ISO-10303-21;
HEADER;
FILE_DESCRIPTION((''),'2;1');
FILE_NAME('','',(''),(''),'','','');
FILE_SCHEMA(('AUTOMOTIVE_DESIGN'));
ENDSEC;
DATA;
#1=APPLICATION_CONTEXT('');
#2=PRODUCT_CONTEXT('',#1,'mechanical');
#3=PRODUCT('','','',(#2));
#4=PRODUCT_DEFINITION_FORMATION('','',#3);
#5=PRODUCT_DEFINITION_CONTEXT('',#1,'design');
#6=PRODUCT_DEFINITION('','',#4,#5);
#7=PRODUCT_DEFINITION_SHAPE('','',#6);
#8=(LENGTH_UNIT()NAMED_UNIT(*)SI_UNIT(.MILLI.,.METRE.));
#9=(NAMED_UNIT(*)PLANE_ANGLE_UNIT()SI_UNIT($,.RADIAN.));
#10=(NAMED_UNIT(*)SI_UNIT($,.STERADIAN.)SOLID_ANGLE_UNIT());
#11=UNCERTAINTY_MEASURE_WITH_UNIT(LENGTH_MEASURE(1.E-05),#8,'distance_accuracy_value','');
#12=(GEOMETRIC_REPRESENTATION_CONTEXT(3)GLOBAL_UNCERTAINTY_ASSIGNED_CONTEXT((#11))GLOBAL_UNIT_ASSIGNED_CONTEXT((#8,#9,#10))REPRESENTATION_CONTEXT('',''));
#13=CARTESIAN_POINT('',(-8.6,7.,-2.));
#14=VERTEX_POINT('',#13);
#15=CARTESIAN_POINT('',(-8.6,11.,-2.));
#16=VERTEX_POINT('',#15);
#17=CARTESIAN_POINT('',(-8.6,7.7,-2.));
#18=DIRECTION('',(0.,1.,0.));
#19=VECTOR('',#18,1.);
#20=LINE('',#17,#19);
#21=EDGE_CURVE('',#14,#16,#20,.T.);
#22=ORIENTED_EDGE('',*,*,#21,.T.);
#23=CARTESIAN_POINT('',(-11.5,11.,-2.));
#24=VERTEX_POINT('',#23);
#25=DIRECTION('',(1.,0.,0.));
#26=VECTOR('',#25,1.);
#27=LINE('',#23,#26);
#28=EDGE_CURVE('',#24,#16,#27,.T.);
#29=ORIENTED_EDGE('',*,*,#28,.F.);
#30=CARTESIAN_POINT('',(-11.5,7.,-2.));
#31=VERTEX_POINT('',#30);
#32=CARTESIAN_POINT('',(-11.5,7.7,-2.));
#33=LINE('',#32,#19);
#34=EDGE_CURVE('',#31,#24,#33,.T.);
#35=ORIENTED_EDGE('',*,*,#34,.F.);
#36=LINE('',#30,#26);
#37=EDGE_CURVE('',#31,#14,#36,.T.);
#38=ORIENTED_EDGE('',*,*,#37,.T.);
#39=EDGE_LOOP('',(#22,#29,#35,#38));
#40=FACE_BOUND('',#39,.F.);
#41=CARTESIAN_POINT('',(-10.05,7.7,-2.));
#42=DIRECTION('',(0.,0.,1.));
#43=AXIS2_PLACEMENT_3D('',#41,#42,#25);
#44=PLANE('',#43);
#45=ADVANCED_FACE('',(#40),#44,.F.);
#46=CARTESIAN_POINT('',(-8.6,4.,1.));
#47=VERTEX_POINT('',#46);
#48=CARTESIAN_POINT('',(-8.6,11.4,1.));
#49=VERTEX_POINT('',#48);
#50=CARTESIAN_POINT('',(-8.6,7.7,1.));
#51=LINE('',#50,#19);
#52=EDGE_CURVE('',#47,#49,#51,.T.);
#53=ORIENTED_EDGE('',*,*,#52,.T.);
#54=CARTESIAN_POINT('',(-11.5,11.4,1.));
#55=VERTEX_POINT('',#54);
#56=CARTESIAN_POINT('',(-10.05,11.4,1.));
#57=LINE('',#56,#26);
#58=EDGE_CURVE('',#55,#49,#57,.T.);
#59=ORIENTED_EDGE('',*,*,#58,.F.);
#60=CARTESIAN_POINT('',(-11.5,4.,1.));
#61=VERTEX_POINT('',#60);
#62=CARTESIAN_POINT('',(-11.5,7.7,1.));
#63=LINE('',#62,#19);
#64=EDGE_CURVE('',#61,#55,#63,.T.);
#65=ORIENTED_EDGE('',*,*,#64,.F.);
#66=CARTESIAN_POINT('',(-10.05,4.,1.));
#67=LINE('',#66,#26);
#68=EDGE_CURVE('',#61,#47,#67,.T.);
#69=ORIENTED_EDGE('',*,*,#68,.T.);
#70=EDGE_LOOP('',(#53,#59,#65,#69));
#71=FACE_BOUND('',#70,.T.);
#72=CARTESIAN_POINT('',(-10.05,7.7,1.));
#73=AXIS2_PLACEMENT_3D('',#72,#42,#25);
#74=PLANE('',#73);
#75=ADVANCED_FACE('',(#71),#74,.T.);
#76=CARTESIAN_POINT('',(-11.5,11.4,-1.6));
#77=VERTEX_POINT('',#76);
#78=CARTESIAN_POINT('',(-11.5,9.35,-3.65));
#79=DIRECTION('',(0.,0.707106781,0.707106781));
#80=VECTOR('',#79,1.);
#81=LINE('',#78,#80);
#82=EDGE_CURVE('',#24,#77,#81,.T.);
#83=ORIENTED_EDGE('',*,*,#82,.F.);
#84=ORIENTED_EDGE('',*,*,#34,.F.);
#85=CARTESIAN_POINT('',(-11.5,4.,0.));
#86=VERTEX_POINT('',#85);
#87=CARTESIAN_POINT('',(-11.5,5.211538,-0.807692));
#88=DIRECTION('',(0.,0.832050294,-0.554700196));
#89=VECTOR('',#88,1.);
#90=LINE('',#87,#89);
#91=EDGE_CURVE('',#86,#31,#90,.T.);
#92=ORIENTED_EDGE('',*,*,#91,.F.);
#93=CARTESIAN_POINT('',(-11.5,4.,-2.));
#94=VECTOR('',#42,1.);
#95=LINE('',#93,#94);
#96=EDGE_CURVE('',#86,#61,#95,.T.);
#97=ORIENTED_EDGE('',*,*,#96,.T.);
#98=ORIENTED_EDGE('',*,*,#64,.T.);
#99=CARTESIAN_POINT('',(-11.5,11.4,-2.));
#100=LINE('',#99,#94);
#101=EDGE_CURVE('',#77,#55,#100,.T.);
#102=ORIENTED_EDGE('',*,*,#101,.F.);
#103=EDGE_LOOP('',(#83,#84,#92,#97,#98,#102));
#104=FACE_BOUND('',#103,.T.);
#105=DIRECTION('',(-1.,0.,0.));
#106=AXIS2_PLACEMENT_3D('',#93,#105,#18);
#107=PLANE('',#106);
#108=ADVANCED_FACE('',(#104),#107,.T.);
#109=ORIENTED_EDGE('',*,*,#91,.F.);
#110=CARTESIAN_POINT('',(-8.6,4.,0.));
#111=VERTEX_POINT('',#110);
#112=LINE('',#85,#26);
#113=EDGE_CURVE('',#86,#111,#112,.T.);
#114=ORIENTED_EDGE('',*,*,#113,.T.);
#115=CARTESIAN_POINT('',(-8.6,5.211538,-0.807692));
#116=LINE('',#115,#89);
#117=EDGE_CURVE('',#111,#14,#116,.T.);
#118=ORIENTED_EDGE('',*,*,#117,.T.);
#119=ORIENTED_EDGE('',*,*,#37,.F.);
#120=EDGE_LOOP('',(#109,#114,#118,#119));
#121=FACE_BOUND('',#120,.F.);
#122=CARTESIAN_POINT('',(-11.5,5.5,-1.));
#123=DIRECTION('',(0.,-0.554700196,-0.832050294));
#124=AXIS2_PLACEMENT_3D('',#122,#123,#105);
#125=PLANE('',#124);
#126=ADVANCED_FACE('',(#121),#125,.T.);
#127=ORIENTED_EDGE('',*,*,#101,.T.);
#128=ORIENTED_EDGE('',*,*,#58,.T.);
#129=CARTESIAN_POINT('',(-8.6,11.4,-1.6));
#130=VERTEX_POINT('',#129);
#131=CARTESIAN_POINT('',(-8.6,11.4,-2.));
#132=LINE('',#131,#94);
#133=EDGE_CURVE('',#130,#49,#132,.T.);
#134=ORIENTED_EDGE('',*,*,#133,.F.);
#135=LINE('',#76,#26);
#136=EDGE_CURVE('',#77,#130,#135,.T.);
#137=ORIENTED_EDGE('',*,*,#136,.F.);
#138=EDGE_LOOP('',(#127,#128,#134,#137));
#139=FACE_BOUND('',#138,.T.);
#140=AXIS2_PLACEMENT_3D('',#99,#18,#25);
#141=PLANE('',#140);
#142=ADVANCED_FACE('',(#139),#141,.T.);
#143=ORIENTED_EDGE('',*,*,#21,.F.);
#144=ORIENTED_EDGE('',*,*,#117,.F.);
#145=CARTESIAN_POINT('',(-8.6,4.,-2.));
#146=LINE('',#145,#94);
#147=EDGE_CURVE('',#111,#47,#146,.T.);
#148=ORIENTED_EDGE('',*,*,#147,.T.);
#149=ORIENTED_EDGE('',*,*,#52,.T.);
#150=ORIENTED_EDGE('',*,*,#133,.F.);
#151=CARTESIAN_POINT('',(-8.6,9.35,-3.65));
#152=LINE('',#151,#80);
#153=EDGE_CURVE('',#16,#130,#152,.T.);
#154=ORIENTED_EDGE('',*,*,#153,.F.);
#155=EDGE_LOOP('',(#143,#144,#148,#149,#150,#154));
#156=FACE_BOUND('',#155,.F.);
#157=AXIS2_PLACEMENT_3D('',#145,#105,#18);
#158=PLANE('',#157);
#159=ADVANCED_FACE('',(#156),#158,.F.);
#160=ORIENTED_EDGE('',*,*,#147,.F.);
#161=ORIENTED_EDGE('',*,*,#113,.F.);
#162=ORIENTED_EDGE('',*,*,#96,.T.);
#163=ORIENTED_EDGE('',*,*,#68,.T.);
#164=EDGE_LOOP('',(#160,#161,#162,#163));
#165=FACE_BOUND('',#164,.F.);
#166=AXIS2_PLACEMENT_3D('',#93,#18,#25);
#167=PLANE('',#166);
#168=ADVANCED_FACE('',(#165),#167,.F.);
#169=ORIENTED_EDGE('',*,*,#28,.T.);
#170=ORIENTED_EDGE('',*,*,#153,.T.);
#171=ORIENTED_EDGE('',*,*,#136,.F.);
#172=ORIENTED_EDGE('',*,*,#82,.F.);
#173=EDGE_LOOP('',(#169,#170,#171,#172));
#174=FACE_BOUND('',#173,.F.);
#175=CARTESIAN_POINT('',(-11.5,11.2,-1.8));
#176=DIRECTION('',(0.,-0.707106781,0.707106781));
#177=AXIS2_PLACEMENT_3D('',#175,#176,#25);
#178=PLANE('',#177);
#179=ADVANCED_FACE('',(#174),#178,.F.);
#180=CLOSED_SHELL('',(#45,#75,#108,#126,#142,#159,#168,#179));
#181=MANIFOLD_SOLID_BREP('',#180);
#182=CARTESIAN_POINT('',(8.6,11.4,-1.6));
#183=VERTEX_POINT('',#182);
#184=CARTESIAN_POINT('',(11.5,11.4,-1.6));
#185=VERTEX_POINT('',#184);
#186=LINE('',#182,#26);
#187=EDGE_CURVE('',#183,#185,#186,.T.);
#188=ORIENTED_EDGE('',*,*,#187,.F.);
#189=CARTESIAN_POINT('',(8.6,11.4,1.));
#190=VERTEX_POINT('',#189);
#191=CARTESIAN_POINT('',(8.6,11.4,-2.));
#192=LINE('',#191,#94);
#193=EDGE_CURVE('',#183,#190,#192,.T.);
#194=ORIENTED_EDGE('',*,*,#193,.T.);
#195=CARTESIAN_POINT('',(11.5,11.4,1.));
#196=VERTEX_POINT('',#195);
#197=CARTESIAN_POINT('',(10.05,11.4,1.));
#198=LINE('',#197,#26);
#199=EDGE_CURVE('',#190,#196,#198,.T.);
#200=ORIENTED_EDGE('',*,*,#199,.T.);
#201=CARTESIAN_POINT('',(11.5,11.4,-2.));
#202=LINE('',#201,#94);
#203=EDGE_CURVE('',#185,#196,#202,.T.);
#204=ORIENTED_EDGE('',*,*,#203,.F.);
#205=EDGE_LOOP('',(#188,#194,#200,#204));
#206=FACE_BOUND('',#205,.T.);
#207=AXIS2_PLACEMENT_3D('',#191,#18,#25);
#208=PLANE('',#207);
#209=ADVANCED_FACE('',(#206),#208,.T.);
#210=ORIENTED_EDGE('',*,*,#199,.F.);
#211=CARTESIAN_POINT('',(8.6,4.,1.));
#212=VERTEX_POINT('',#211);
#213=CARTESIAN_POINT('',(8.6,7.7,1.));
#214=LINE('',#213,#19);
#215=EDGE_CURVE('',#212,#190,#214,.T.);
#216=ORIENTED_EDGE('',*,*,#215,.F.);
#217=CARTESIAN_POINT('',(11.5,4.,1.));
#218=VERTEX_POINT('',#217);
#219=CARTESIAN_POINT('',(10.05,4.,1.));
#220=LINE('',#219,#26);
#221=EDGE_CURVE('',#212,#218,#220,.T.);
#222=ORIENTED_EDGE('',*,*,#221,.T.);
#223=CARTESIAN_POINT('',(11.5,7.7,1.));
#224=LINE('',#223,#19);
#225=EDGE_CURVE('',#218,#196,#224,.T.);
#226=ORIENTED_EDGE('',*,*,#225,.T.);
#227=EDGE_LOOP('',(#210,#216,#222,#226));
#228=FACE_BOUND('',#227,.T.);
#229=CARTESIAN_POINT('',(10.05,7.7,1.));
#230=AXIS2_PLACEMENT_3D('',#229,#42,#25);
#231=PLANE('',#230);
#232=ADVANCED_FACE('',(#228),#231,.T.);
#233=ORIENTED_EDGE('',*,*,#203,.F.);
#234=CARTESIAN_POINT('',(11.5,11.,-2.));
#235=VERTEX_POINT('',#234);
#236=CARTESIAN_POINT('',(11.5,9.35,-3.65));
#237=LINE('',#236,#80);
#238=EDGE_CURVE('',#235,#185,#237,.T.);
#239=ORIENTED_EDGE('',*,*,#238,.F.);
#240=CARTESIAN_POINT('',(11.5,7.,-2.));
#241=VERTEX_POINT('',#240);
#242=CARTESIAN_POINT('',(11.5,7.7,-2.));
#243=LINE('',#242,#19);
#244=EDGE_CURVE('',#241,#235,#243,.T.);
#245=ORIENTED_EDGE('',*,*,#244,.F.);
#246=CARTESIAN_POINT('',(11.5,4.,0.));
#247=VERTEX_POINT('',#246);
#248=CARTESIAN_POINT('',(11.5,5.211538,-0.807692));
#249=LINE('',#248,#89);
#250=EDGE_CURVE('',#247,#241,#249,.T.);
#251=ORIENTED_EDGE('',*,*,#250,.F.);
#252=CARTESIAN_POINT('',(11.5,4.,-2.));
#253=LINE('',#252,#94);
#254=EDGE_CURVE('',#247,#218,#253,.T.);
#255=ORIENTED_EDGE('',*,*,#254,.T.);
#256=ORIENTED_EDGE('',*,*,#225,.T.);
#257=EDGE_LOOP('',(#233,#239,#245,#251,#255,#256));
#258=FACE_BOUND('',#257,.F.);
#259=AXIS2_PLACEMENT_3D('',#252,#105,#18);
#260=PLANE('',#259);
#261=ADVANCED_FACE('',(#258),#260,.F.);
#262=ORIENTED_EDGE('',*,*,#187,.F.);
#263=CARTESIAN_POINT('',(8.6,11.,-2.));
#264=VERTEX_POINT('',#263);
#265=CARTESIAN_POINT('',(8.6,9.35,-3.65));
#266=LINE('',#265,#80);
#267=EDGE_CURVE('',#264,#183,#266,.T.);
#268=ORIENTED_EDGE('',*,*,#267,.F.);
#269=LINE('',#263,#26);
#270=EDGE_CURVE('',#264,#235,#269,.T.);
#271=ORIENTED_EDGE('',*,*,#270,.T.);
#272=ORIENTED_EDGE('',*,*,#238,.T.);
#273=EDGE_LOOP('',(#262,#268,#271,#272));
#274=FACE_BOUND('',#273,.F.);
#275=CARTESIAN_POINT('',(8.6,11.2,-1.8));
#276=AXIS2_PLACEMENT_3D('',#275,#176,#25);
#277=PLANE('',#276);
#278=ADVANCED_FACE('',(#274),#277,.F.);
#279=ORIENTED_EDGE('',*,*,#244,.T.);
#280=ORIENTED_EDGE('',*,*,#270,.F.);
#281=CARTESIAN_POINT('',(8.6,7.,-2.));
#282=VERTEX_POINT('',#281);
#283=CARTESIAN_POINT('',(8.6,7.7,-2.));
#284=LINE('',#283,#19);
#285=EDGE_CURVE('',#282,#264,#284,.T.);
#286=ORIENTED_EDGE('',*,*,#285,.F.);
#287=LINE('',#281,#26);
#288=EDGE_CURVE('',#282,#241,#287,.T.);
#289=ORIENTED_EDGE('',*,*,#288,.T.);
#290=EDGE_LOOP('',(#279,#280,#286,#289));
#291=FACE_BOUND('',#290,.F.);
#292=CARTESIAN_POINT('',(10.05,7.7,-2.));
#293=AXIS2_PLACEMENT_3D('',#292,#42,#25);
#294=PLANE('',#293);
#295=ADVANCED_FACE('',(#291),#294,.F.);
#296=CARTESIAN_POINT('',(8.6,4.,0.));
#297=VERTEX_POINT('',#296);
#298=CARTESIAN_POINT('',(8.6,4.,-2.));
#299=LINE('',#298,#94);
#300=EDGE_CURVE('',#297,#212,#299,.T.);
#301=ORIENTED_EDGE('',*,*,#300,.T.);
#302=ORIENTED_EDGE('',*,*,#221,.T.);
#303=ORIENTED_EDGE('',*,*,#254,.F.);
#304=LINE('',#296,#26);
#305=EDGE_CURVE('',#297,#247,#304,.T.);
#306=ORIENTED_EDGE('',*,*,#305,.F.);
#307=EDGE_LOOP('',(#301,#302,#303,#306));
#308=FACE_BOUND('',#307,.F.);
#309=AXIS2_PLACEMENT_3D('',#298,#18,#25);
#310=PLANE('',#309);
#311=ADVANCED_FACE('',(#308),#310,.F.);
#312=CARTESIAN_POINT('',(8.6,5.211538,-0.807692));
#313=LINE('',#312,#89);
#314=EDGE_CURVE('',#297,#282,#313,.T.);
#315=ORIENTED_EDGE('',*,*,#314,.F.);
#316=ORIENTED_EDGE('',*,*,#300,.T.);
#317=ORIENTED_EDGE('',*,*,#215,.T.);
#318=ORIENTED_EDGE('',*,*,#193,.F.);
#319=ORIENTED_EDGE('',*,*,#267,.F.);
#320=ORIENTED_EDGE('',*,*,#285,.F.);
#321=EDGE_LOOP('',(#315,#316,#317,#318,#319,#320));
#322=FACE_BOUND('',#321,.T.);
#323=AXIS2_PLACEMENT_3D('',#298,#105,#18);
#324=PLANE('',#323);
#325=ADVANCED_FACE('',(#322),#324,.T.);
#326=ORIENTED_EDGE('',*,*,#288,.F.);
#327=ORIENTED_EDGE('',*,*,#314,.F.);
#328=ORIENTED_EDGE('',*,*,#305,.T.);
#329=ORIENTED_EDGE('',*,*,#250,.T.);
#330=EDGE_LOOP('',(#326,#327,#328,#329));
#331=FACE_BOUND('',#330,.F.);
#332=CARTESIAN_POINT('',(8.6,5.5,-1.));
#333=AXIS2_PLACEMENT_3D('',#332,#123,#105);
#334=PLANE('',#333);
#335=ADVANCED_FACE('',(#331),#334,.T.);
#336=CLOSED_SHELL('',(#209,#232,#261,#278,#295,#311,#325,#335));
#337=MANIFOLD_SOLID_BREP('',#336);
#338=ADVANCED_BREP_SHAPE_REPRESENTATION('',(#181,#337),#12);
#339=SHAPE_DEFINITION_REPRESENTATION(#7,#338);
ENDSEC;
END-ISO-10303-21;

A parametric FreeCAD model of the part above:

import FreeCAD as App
import Part
import Sketcher
Q = App.Units.Quantity


def edges_at(feature, points):
    """Names of the edges that pass closest to the given points."""
    edges = feature.Shape.Edges
    near = lambda p: min(range(len(edges)), key=lambda i: edges[i].distToShape(Part.Vertex(*p))[0])
    return sorted({f"Edge{near(p) + 1}" for p in points})


def add_polygon(sketch, points):
    """Adds a closed chain of lines whose ends are joined by coincident constraints."""
    first, n = sketch.GeometryCount, len(points)
    for a, b in zip(points, points[1:] + points[:1]):
        sketch.addGeometry(Part.LineSegment(App.Vector(*a, 0), App.Vector(*b, 0)), False)
    for i in range(n):
        sketch.addConstraint(Sketcher.Constraint("Coincident", first + i, 2, first + (i + 1) % n, 1))

doc = App.newDocument("Part")
body = doc.addObject("PartDesign::Body", "Body")

# Sketch on XY plane
sketch1 = body.newObject("Sketcher::SketchObject", "Sketch")
sketch1.AttachmentSupport = (doc.getObject("XY_Plane"), [""])
sketch1.MapMode = "FlatFace"
sketch1.AttachmentOffset = App.Placement(App.Vector(0, 0, -2), App.Rotation())
add_polygon(sketch1, [(-11.5, 11.4), (-11.5, 4), (-8.6, 4), (-8.6, 11.4)])  # lines 0-3
sketch1.addConstraint([
    Sketcher.Constraint("Vertical", 0),
    Sketcher.Constraint("Horizontal", 1),
    Sketcher.Constraint("Vertical", 2),
    Sketcher.Constraint("Horizontal", 3),
    Sketcher.Constraint("DistanceX", 1, 1, 1, 2, Q("2.9 mm")),
    Sketcher.Constraint("DistanceY", 0, 2, 0, 1, Q("7.4 mm")),
    Sketcher.Constraint("DistanceY", -1, 1, 0, 2, Q("4 mm")),
    Sketcher.Constraint("DistanceX", 0, 2, -1, 1, Q("11.5 mm")),
])
pad1 = body.newObject("PartDesign::Pad", "Pad")
pad1.Profile = sketch1
pad1.Length = 3
body2 = doc.addObject("PartDesign::Body", "Body001")
body2.AllowCompound = True

# Sketch on XY plane
sketch2 = body2.newObject("Sketcher::SketchObject", "Sketch001")
sketch2.AttachmentSupport = (doc.getObject("XY_Plane001"), [""])
sketch2.MapMode = "FlatFace"
sketch2.AttachmentOffset = App.Placement(App.Vector(0, 0, -2), App.Rotation())
add_polygon(sketch2, [(8.6, 11.4), (8.6, 4), (11.5, 4), (11.5, 11.4)])  # lines 0-3
sketch2.addConstraint([
    Sketcher.Constraint("Vertical", 0),
    Sketcher.Constraint("Horizontal", 1),
    Sketcher.Constraint("Vertical", 2),
    Sketcher.Constraint("Horizontal", 3),
    Sketcher.Constraint("DistanceX", 1, 1, 1, 2, Q("2.9 mm")),
    Sketcher.Constraint("DistanceY", 0, 2, 0, 1, Q("7.4 mm")),
    Sketcher.Constraint("DistanceY", -1, 1, 0, 2, Q("4 mm")),
    Sketcher.Constraint("DistanceX", -1, 1, 0, 2, Q("8.6 mm")),
])
pad2 = body2.newObject("PartDesign::Pad", "Pad001")
pad2.Profile = sketch2
pad2.Length = 3
doc.recompute()

boolean = body2.newObject("PartDesign::Boolean", "Boolean")
boolean.Type = "Fuse"
boolean.addObjects([body])
doc.recompute()

chamfer = body2.newObject("PartDesign::Chamfer", "Chamfer")
chamfer.Base = (boolean, edges_at(boolean, [(-10.05, 4, -2)]))
chamfer.ChamferType = "Two distances"
chamfer.Size = 2
chamfer.Size2 = 3
doc.recompute()

chamfer2 = body2.newObject("PartDesign::Chamfer", "Chamfer001")
chamfer2.Base = (chamfer, edges_at(chamfer, [(10.05, 4, -2)]))
chamfer2.ChamferType = "Two distances"
chamfer2.Size = 2
chamfer2.Size2 = 3
doc.recompute()

chamfer3 = body2.newObject("PartDesign::Chamfer", "Chamfer002")
chamfer3.Base = (chamfer2, edges_at(chamfer2, [(10.05, 11.4, -2), (-10.05, 11.4, -2)]))
chamfer3.Size = 0.4

doc.recompute()
